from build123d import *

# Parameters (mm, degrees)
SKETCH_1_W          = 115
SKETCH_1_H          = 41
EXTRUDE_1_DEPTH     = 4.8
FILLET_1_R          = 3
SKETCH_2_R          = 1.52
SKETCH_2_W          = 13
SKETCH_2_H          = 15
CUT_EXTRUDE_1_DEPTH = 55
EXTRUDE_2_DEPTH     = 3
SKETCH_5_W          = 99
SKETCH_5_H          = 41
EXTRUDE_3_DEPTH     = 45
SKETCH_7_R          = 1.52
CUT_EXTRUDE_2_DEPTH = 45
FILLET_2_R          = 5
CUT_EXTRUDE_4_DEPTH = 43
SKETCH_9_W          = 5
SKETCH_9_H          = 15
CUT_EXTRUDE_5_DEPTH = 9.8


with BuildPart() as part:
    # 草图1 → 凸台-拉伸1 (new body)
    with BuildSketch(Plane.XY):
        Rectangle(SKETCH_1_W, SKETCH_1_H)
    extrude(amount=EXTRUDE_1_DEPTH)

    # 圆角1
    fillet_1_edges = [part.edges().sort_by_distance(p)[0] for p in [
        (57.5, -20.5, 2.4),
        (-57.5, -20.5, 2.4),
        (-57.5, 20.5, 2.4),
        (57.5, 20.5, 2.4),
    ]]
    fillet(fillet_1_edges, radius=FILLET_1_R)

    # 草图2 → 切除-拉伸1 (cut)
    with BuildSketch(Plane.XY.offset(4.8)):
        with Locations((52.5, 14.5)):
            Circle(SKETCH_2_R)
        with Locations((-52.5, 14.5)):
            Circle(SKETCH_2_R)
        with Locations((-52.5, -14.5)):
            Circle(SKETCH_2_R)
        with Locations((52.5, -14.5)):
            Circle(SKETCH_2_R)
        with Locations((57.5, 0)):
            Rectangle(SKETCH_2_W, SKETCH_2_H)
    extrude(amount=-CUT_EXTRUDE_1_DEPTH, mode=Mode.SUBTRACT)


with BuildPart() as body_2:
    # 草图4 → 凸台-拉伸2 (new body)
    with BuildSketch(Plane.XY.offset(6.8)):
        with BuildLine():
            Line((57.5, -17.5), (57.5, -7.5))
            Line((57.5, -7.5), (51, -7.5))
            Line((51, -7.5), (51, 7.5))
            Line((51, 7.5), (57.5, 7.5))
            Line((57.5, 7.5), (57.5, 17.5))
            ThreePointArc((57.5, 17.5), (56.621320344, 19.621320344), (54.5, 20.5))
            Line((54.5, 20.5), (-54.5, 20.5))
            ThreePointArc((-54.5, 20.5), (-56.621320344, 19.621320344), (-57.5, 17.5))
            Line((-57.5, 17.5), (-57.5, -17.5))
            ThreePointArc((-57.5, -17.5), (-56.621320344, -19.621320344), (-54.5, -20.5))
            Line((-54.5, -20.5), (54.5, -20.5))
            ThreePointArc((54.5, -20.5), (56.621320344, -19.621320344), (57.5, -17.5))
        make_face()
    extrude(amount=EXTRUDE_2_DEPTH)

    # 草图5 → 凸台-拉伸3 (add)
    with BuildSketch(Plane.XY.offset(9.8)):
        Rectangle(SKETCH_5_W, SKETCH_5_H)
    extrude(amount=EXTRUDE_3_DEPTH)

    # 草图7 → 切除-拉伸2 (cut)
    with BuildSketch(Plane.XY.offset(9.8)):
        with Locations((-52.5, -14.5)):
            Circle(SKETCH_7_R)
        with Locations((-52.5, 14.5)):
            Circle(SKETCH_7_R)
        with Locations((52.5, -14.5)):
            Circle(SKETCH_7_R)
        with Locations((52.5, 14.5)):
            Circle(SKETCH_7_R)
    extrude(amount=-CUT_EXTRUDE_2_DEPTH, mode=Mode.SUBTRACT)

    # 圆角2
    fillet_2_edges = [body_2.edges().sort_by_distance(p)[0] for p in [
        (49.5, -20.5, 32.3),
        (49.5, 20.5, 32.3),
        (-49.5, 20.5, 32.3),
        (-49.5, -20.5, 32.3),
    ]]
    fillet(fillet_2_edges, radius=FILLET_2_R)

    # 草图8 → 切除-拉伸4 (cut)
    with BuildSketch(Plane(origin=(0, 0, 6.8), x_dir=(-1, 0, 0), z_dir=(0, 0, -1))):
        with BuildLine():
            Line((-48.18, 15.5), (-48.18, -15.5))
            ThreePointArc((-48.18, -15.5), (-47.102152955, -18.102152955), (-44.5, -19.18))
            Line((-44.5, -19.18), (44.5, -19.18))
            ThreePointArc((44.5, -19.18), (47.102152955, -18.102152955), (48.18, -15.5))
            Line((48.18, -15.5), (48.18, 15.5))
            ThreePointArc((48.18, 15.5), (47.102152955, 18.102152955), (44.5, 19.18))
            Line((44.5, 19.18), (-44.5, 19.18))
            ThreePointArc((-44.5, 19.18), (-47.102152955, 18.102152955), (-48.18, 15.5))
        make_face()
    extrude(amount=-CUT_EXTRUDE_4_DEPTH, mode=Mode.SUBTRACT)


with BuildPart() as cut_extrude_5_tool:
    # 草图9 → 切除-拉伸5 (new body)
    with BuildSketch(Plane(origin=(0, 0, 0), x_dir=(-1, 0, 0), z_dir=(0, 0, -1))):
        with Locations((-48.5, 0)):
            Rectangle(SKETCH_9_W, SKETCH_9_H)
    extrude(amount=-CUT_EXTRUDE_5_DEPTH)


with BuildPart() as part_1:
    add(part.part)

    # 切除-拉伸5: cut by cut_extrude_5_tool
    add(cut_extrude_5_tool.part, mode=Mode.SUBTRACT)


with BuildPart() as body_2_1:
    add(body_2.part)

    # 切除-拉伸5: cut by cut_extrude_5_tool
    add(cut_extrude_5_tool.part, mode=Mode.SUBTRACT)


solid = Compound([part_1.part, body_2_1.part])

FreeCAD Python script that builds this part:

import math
import FreeCAD as App
import Part
import Sketcher
from FreeCAD import Vector


def edges_at(feature, points):
    """Names of the edges that pass closest to the given points."""
    edges = feature.Shape.Edges
    near = lambda p: min(range(len(edges)), key=lambda i: edges[i].distToShape(Part.Vertex(*p))[0])
    return sorted({f"Edge{near(p) + 1}" for p in points})


def add_polygon(sketch, points):
    """Adds a closed chain of lines whose ends are joined by coincident constraints."""
    first, n = sketch.GeometryCount, len(points)
    for a, b in zip(points, points[1:] + points[:1]):
        sketch.addGeometry(Part.LineSegment(App.Vector(*a, 0), App.Vector(*b, 0)), False)
    for i in range(n):
        sketch.addConstraint(Sketcher.Constraint("Coincident", first + i, 2, first + (i + 1) % n, 1))

doc = App.newDocument("Part")
body = doc.addObject("PartDesign::Body", "Body")

# Sketch on XY plane
sketch1 = body.newObject("Sketcher::SketchObject", "Sketch")
sketch1.AttachmentSupport = (doc.getObject("XY_Plane"), [""])
sketch1.MapMode = "FlatFace"
add_polygon(sketch1, [(-58, 20), (-58, -20), (58, -20), (58, 20)])  # lines 0-3
sketch1.addConstraint([
    Sketcher.Constraint("Vertical", 0),
    Sketcher.Constraint("Horizontal", 1),
    Sketcher.Constraint("Vertical", 2),
    Sketcher.Constraint("Horizontal", 3),
    Sketcher.Constraint("Symmetric", 0, 2, 2, 2, -1, 1),
    Sketcher.Constraint("DistanceX", 1, 1, 1, 2, 115.0),
    Sketcher.Constraint("DistanceY", 0, 2, 0, 1, 41.0),
])
pad1 = body.newObject("PartDesign::Pad", "Pad")
pad1.Profile = sketch1
pad1.Length = 4.8
doc.recompute()

fillet = body.newObject("PartDesign::Fillet", "Fillet")
fillet.Base = (pad1, edges_at(pad1, [
    (57.5, -20.5, 2.4),
    (-57.5, -20.5, 2.4),
    (-57.5, 20.5, 2.4),
    (57.5, 20.5, 2.4),
]))
fillet.Radius = 3

# Sketch on XY plane
sketch2 = body.newObject("Sketcher::SketchObject", "Sketch001")
sketch2.AttachmentSupport = (doc.getObject("XY_Plane"), [""])
sketch2.MapMode = "FlatFace"
sketch2.AttachmentOffset = App.Placement(Vector(0, 0, 4.8), App.Rotation())
sketch2.addGeometry(Part.Circle(Vector(52.5, 14.5, 0), Vector(0, 0, 1), 1.5), False)  # 0
sketch2.addGeometry(Part.Circle(Vector(-52.5, 14.5, 0), Vector(0, 0, 1), 1.5), False)  # 1
sketch2.addGeometry(Part.Circle(Vector(-52.5, -14.5, 0), Vector(0, 0, 1), 1.5), False)  # 2
sketch2.addGeometry(Part.Circle(Vector(52.5, -14.5, 0), Vector(0, 0, 1), 1.5), False)  # 3
add_polygon(sketch2, [(51, 7.5), (51, -7.5), (64, -7.5), (64, 7.5)])  # lines 4-7
sketch2.addConstraint([
    Sketcher.Constraint("Vertical", 4),
    Sketcher.Constraint("Horizontal", 5),
    Sketcher.Constraint("Vertical", 6),
    Sketcher.Constraint("Horizontal", 7),
    Sketcher.Constraint("Equal", 0, 1),
    Sketcher.Constraint("Equal", 1, 2),
    Sketcher.Constraint("Equal", 2, 3),
    Sketcher.Constraint("Symmetric", 0, 3, 2, 3, -1, 1),
    Sketcher.Constraint("Symmetric", 1, 3, 3, 3, -1, 1),
    Sketcher.Constraint("Symmetric", 0, 3, 1, 3, -2),
    Sketcher.Constraint("Diameter", 0, 3.04),
    Sketcher.Constraint("DistanceX", 5, 1, 5, 2, 13.0),
    Sketcher.Constraint("DistanceY", 4, 2, 4, 1, 15.0),
    Sketcher.Constraint("DistanceX", -1, 1, 4, 2, 51.0),
    Sketcher.Constraint("DistanceX", 1, 3, 0, 3, 105.0),
    Sketcher.Constraint("DistanceY", 2, 3, 1, 3, 29.0),
    Sketcher.Constraint("DistanceY", 3, 3, 4, 2, 7.0),
])
pocket1 = body.newObject("PartDesign::Pocket", "Pocket")
pocket1.Profile = sketch2
pocket1.Length = 55
body2 = doc.addObject("PartDesign::Body", "Body001")

# Sketch on XY plane
sketch3 = body2.newObject("Sketcher::SketchObject", "Sketch002")
sketch3.AttachmentSupport = (doc.getObject("XY_Plane001"), [""])
sketch3.MapMode = "FlatFace"
sketch3.AttachmentOffset = App.Placement(Vector(0, 0, 6.8), App.Rotation())
sketch3.addGeometry([
    Part.LineSegment(Vector(57.5, -17.5, 0), Vector(57.5, -7.5, 0)),  # 0
    Part.LineSegment(Vector(57.5, -7.5, 0), Vector(51, -7.5, 0)),  # 1
    Part.LineSegment(Vector(51, -7.5, 0), Vector(51, 7.5, 0)),  # 2
    Part.LineSegment(Vector(51, 7.5, 0), Vector(57.5, 7.5, 0)),  # 3
    Part.LineSegment(Vector(57.5, 7.5, 0), Vector(57.5, 17.5, 0)),  # 4
    Part.ArcOfCircle(Part.Circle(Vector(54.5, 17.5, 0), Vector(0, 0, 1), 3), math.radians(0), math.radians(90)),  # 5
    Part.LineSegment(Vector(54.5, 20.5, 0), Vector(-54.5, 20.5, 0)),  # 6
    Part.ArcOfCircle(Part.Circle(Vector(-54.5, 17.5, 0), Vector(0, 0, 1), 3), math.radians(90), math.radians(180)),  # 7
    Part.LineSegment(Vector(-57.5, 17.5, 0), Vector(-57.5, -17.5, 0)),  # 8
    Part.ArcOfCircle(Part.Circle(Vector(-54.5, -17.5, 0), Vector(0, 0, 1), 3), math.radians(180), math.radians(270)),  # 9
    Part.LineSegment(Vector(-54.5, -20.5, 0), Vector(54.5, -20.5, 0)),  # 10
    Part.ArcOfCircle(Part.Circle(Vector(54.5, -17.5, 0), Vector(0, 0, 1), 3), math.radians(-90), math.radians(0)),  # 11
], False)
sketch3.addConstraint([
    Sketcher.Constraint("Coincident", 0, 2, 1, 1),
    Sketcher.Constraint("Coincident", 1, 2, 2, 1),
    Sketcher.Constraint("Coincident", 2, 2, 3, 1),
    Sketcher.Constraint("Coincident", 3, 2, 4, 1),
    Sketcher.Constraint("Tangent", 4, 2, 5, 1),
    Sketcher.Constraint("Tangent", 5, 2, 6, 1),
    Sketcher.Constraint("Tangent", 6, 2, 7, 1),
    Sketcher.Constraint("Tangent", 7, 2, 8, 1),
    Sketcher.Constraint("Tangent", 8, 2, 9, 1),
    Sketcher.Constraint("Tangent", 9, 2, 10, 1),
    Sketcher.Constraint("Tangent", 10, 2, 11, 1),
    Sketcher.Constraint("Tangent", 11, 2, 0, 1),
    Sketcher.Constraint("Vertical", 0),
    Sketcher.Constraint("Horizontal", 1),
    Sketcher.Constraint("Vertical", 2),
    Sketcher.Constraint("Horizontal", 3),
    Sketcher.Constraint("Vertical", 4),
    Sketcher.Constraint("Horizontal", 6),
    Sketcher.Constraint("Vertical", 8),
    Sketcher.Constraint("Horizontal", 10),
    Sketcher.Constraint("Equal", 5, 7),
    Sketcher.Constraint("Equal", 7, 9),
    Sketcher.Constraint("Equal", 9, 11),
    Sketcher.Constraint("Symmetric", 5, 3, 9, 3, -1, 1),
    Sketcher.Constraint("Symmetric", 0, 2, 3, 2, -1),
    Sketcher.Constraint("Radius", 5, 3.0),
    Sketcher.Constraint("DistanceX", 6, 2, 6, 1, 109.0),
    Sketcher.Constraint("DistanceY", 0, 1, 0, 2, 10.0),
    Sketcher.Constraint("DistanceY", 2, 1, 2, 2, 15.0),
    Sketcher.Constraint("DistanceX", 1, 2, 1, 1, 6.5),
])
pad2 = body2.newObject("PartDesign::Pad", "Pad001")
pad2.Profile = sketch3
pad2.Length = 3

# Sketch on XY plane
sketch4 = body2.newObject("Sketcher::SketchObject", "Sketch003")
sketch4.AttachmentSupport = (doc.getObject("XY_Plane001"), [""])
sketch4.MapMode = "FlatFace"
sketch4.AttachmentOffset = App.Placement(Vector(0, 0, 9.8), App.Rotation())
add_polygon(sketch4, [(-50, 20), (-50, -20), (50, -20), (50, 20)])  # lines 0-3
sketch4.addConstraint([
    Sketcher.Constraint("Vertical", 0),
    Sketcher.Constraint("Horizontal", 1),
    Sketcher.Constraint("Vertical", 2),
    Sketcher.Constraint("Horizontal", 3),
    Sketcher.Constraint("Symmetric", 0, 2, 2, 2, -1, 1),
    Sketcher.Constraint("DistanceX", 1, 1, 1, 2, 99.0),
    Sketcher.Constraint("DistanceY", 0, 2, 0, 1, 41.0),
])
pad3 = body2.newObject("PartDesign::Pad", "Pad002")
pad3.Profile = sketch4
pad3.Length = 45

# Sketch on XY plane
sketch5 = body2.newObject("Sketcher::SketchObject", "Sketch004")
sketch5.AttachmentSupport = (doc.getObject("XY_Plane001"), [""])
sketch5.MapMode = "FlatFace"
sketch5.AttachmentOffset = App.Placement(Vector(0, 0, 9.8), App.Rotation())
sketch5.addGeometry([
    Part.Circle(Vector(-52.5, -14.5, 0), Vector(0, 0, 1), 1.5),
    Part.Circle(Vector(-52.5, 14.5, 0), Vector(0, 0, 1), 1.5),
    Part.Circle(Vector(52.5, -14.5, 0), Vector(0, 0, 1), 1.5),
    Part.Circle(Vector(52.5, 14.5, 0), Vector(0, 0, 1), 1.5),
], False)
sketch5.addConstraint([
    Sketcher.Constraint("Equal", 0, 1),
    Sketcher.Constraint("Equal", 1, 2),
    Sketcher.Constraint("Equal", 2, 3),
    Sketcher.Constraint("Symmetric", 1, 3, 2, 3, -1, 1),
    Sketcher.Constraint("Symmetric", 0, 3, 3, 3, -1, 1),
    Sketcher.Constraint("Symmetric", 0, 3, 2, 3, -2),
    Sketcher.Constraint("Diameter", 0, 3.04),
    Sketcher.Constraint("DistanceY", 0, 3, 1, 3, 29.0),
    Sketcher.Constraint("DistanceX", 0, 3, 2, 3, 105.0),
])
pocket2 = body2.newObject("PartDesign::Pocket", "Pocket001")
pocket2.Profile = sketch5
pocket2.Length = 45
doc.recompute()

fillet2 = body2.newObject("PartDesign::Fillet", "Fillet001")
fillet2.Base = (pocket2, edges_at(pocket2, [
    (49.5, -20.5, 32.3),
    (49.5, 20.5, 32.3),
    (-49.5, 20.5, 32.3),
    (-49.5, -20.5, 32.3),
]))
fillet2.Radius = 5

# Sketch on XY plane
sketch6 = body2.newObject("Sketcher::SketchObject", "Sketch005")
sketch6.AttachmentSupport = (doc.getObject("XY_Plane001"), [""])
sketch6.MapMode = "FlatFace"
sketch6.AttachmentOffset = App.Placement(Vector(0, 0, 6.8), App.Rotation())
sketch6.addGeometry([
    Part.LineSegment(Vector(48.2, 15.5, 0), Vector(48.2, -15.5, 0)),  # 0
    Part.ArcOfCircle(Part.Circle(Vector(44.5, -15.5, 0), Vector(0, 0, 1), 3.7), math.radians(-90), math.radians(0)),  # 1
    Part.LineSegment(Vector(44.5, -19.2, 0), Vector(-44.5, -19.2, 0)),  # 2
    Part.ArcOfCircle(Part.Circle(Vector(-44.5, -15.5, 0), Vector(0, 0, 1), 3.7), math.radians(180), math.radians(270)),  # 3
    Part.LineSegment(Vector(-48.2, -15.5, 0), Vector(-48.2, 15.5, 0)),  # 4
    Part.ArcOfCircle(Part.Circle(Vector(-44.5, 15.5, 0), Vector(0, 0, 1), 3.7), math.radians(90), math.radians(180)),  # 5
    Part.LineSegment(Vector(-44.5, 19.2, 0), Vector(44.5, 19.2, 0)),  # 6
    Part.ArcOfCircle(Part.Circle(Vector(44.5, 15.5, 0), Vector(0, 0, 1), 3.7), math.radians(0), math.radians(90)),  # 7
], False)
sketch6.addConstraint([
    Sketcher.Constraint("Tangent", 0, 2, 1, 2),
    Sketcher.Constraint("Tangent", 1, 1, 2, 1),
    Sketcher.Constraint("Tangent", 2, 2, 3, 2),
    Sketcher.Constraint("Tangent", 3, 1, 4, 1),
    Sketcher.Constraint("Tangent", 4, 2, 5, 2),
    Sketcher.Constraint("Tangent", 5, 1, 6, 1),
    Sketcher.Constraint("Tangent", 6, 2, 7, 2),
    Sketcher.Constraint("Tangent", 7, 1, 0, 1),
    Sketcher.Constraint("Vertical", 0),
    Sketcher.Constraint("Horizontal", 2),
    Sketcher.Constraint("Vertical", 4),
    Sketcher.Constraint("Horizontal", 6),
    Sketcher.Constraint("Equal", 1, 3),
    Sketcher.Constraint("Equal", 3, 5),
    Sketcher.Constraint("Equal", 5, 7),
    Sketcher.Constraint("Symmetric", 1, 3, 5, 3, -1, 1),
    Sketcher.Constraint("DistanceX", 2, 2, 2, 1, 89.0),
    Sketcher.Constraint("DistanceY", 0, 2, 0, 1, 31.0),
    Sketcher.Constraint("Radius", 1, 3.68),
])
pocket3 = body2.newObject("PartDesign::Pocket", "Pocket002")
pocket3.Profile = sketch6
pocket3.Length = 43
pocket3.Reversed = True
body3 = doc.addObject("PartDesign::Body", "Body002")

# Sketch on XY plane
sketch7 = body3.newObject("Sketcher::SketchObject", "Sketch006")
sketch7.AttachmentSupport = (doc.getObject("XY_Plane002"), [""])
sketch7.MapMode = "FlatFace"
add_polygon(sketch7, [(51, 8), (51, -8), (46, -8), (46, 8)])  # lines 0-3
sketch7.addConstraint([
    Sketcher.Constraint("Vertical", 0),
    Sketcher.Constraint("Horizontal", 1),
    Sketcher.Constraint("Vertical", 2),
    Sketcher.Constraint("Horizontal", 3),
    Sketcher.Constraint("DistanceX", 1, 2, 1, 1, 5.0),
    Sketcher.Constraint("DistanceY", 0, 2, 0, 1, 15.0),
    Sketcher.Constraint("DistanceX", -1, 1, 0, 2, 51.0),
    Sketcher.Constraint("DistanceY", 0, 2, -1, 1, 7.5),
])
pad4 = body3.newObject("PartDesign::Pad", "Pad003")
pad4.Profile = sketch7
pad4.Length = 9.8
doc.recompute()

body4 = doc.addObject("PartDesign::Body", "Body003")
body4.BaseFeature = body3
boolean = body.newObject("PartDesign::Boolean", "Boolean")
boolean.Type = "Cut"
boolean.addObjects([body4])
doc.recompute()

boolean2 = body2.newObject("PartDesign::Boolean", "Boolean001")
boolean2.Type = "Cut"
boolean2.addObjects([body3])

doc.recompute()
